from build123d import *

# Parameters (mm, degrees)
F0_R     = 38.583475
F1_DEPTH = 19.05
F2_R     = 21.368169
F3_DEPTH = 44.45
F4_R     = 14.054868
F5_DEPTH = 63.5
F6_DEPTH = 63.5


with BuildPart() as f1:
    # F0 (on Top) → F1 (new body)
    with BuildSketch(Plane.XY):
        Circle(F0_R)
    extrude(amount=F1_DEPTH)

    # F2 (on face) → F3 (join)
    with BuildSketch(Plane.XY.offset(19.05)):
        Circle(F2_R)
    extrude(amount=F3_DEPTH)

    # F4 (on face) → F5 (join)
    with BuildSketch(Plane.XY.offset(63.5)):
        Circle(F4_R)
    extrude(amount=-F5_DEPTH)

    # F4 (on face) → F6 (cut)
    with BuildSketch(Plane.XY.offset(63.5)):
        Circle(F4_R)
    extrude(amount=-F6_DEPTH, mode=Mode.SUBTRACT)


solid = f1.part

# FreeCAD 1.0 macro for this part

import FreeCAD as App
import Part
import Sketcher

doc = App.newDocument("Part")
params = doc.addObject("Spreadsheet::Sheet", "Params")
for row, (alias, value) in enumerate([
    ("pad1_length", "0.75 in"),
    ("pad2_length", "1.75 in"),
    ("pad3_length", "2.5 in"),
    ("pocket1_length", "2.5 in"),
], start=1):
    params.set(f"A{row}", alias)
    params.set(f"B{row}", "=" + value)
    params.setAlias(f"B{row}", alias)

body = doc.addObject("PartDesign::Body", "Body")

# Sketch on XY plane
sketch1 = doc.addObject("Sketcher::SketchObject", "Sketch")
body.addObject(sketch1)
sketch1.AttachmentSupport = (doc.XY_Plane, [""])
sketch1.MapMode = "FlatFace"
sketch1.addGeometry(Part.Circle(App.Vector(0, 0, 0), App.Vector(0, 0, 1), 39), False)
sketch1.addConstraint([
    Sketcher.Constraint("Coincident", 0, 3, -1, 1),
    Sketcher.Constraint("Diameter", 0, 77.16695),
])
pad1 = doc.addObject("PartDesign::Pad", "Pad")
body.addObject(pad1)
pad1.Profile = sketch1
pad1.setExpression("Length", "Params.pad1_length")

# Sketch on XY plane
sketch2 = doc.addObject("Sketcher::SketchObject", "Sketch001")
body.addObject(sketch2)
sketch2.AttachmentSupport = (doc.XY_Plane, [""])
sketch2.MapMode = "FlatFace"
sketch2.AttachmentOffset = App.Placement(App.Vector(0, 0, 0.75 * 25.4), App.Rotation())
sketch2.addGeometry(Part.Circle(App.Vector(0, 0, 0), App.Vector(0, 0, 1), 21), False)
sketch2.addConstraint([
    Sketcher.Constraint("Coincident", 0, 3, -1, 1),
    Sketcher.Constraint("Diameter", 0, 42.736338),
])
pad2 = doc.addObject("PartDesign::Pad", "Pad001")
body.addObject(pad2)
pad2.Profile = sketch2
pad2.setExpression("Length", "Params.pad2_length")

# Sketch on XY plane
sketch3 = doc.addObject("Sketcher::SketchObject", "Sketch002")
body.addObject(sketch3)
sketch3.AttachmentSupport = (doc.XY_Plane, [""])
sketch3.MapMode = "FlatFace"
sketch3.AttachmentOffset = App.Placement(App.Vector(0, 0, 2.5 * 25.4), App.Rotation())
sketch3.addGeometry(Part.Circle(App.Vector(0, 0, 0), App.Vector(0, 0, 1), 14), False)
sketch3.addConstraint([
    Sketcher.Constraint("Coincident", 0, 3, -1, 1),
    Sketcher.Constraint("Diameter", 0, 28.109736),
])
pad3 = doc.addObject("PartDesign::Pad", "Pad002")
body.addObject(pad3)
pad3.Profile = sketch3
pad3.setExpression("Length", "Params.pad3_length")
pad3.Reversed = True

# Sketch on XY plane
sketch4 = doc.addObject("Sketcher::SketchObject", "Sketch003")
body.addObject(sketch4)
sketch4.AttachmentSupport = (doc.XY_Plane, [""])
sketch4.MapMode = "FlatFace"
sketch4.AttachmentOffset = App.Placement(App.Vector(0, 0, 2.5 * 25.4), App.Rotation())
sketch4.addGeometry(Part.Circle(App.Vector(0, 0, 0), App.Vector(0, 0, 1), 14), False)
sketch4.addConstraint([
    Sketcher.Constraint("Coincident", 0, 3, -1, 1),
    Sketcher.Constraint("Diameter", 0, 28.109736),
])
pocket1 = doc.addObject("PartDesign::Pocket", "Pocket")
body.addObject(pocket1)
pocket1.Profile = sketch4
pocket1.setExpression("Length", "Params.pocket1_length")

doc.recompute()
